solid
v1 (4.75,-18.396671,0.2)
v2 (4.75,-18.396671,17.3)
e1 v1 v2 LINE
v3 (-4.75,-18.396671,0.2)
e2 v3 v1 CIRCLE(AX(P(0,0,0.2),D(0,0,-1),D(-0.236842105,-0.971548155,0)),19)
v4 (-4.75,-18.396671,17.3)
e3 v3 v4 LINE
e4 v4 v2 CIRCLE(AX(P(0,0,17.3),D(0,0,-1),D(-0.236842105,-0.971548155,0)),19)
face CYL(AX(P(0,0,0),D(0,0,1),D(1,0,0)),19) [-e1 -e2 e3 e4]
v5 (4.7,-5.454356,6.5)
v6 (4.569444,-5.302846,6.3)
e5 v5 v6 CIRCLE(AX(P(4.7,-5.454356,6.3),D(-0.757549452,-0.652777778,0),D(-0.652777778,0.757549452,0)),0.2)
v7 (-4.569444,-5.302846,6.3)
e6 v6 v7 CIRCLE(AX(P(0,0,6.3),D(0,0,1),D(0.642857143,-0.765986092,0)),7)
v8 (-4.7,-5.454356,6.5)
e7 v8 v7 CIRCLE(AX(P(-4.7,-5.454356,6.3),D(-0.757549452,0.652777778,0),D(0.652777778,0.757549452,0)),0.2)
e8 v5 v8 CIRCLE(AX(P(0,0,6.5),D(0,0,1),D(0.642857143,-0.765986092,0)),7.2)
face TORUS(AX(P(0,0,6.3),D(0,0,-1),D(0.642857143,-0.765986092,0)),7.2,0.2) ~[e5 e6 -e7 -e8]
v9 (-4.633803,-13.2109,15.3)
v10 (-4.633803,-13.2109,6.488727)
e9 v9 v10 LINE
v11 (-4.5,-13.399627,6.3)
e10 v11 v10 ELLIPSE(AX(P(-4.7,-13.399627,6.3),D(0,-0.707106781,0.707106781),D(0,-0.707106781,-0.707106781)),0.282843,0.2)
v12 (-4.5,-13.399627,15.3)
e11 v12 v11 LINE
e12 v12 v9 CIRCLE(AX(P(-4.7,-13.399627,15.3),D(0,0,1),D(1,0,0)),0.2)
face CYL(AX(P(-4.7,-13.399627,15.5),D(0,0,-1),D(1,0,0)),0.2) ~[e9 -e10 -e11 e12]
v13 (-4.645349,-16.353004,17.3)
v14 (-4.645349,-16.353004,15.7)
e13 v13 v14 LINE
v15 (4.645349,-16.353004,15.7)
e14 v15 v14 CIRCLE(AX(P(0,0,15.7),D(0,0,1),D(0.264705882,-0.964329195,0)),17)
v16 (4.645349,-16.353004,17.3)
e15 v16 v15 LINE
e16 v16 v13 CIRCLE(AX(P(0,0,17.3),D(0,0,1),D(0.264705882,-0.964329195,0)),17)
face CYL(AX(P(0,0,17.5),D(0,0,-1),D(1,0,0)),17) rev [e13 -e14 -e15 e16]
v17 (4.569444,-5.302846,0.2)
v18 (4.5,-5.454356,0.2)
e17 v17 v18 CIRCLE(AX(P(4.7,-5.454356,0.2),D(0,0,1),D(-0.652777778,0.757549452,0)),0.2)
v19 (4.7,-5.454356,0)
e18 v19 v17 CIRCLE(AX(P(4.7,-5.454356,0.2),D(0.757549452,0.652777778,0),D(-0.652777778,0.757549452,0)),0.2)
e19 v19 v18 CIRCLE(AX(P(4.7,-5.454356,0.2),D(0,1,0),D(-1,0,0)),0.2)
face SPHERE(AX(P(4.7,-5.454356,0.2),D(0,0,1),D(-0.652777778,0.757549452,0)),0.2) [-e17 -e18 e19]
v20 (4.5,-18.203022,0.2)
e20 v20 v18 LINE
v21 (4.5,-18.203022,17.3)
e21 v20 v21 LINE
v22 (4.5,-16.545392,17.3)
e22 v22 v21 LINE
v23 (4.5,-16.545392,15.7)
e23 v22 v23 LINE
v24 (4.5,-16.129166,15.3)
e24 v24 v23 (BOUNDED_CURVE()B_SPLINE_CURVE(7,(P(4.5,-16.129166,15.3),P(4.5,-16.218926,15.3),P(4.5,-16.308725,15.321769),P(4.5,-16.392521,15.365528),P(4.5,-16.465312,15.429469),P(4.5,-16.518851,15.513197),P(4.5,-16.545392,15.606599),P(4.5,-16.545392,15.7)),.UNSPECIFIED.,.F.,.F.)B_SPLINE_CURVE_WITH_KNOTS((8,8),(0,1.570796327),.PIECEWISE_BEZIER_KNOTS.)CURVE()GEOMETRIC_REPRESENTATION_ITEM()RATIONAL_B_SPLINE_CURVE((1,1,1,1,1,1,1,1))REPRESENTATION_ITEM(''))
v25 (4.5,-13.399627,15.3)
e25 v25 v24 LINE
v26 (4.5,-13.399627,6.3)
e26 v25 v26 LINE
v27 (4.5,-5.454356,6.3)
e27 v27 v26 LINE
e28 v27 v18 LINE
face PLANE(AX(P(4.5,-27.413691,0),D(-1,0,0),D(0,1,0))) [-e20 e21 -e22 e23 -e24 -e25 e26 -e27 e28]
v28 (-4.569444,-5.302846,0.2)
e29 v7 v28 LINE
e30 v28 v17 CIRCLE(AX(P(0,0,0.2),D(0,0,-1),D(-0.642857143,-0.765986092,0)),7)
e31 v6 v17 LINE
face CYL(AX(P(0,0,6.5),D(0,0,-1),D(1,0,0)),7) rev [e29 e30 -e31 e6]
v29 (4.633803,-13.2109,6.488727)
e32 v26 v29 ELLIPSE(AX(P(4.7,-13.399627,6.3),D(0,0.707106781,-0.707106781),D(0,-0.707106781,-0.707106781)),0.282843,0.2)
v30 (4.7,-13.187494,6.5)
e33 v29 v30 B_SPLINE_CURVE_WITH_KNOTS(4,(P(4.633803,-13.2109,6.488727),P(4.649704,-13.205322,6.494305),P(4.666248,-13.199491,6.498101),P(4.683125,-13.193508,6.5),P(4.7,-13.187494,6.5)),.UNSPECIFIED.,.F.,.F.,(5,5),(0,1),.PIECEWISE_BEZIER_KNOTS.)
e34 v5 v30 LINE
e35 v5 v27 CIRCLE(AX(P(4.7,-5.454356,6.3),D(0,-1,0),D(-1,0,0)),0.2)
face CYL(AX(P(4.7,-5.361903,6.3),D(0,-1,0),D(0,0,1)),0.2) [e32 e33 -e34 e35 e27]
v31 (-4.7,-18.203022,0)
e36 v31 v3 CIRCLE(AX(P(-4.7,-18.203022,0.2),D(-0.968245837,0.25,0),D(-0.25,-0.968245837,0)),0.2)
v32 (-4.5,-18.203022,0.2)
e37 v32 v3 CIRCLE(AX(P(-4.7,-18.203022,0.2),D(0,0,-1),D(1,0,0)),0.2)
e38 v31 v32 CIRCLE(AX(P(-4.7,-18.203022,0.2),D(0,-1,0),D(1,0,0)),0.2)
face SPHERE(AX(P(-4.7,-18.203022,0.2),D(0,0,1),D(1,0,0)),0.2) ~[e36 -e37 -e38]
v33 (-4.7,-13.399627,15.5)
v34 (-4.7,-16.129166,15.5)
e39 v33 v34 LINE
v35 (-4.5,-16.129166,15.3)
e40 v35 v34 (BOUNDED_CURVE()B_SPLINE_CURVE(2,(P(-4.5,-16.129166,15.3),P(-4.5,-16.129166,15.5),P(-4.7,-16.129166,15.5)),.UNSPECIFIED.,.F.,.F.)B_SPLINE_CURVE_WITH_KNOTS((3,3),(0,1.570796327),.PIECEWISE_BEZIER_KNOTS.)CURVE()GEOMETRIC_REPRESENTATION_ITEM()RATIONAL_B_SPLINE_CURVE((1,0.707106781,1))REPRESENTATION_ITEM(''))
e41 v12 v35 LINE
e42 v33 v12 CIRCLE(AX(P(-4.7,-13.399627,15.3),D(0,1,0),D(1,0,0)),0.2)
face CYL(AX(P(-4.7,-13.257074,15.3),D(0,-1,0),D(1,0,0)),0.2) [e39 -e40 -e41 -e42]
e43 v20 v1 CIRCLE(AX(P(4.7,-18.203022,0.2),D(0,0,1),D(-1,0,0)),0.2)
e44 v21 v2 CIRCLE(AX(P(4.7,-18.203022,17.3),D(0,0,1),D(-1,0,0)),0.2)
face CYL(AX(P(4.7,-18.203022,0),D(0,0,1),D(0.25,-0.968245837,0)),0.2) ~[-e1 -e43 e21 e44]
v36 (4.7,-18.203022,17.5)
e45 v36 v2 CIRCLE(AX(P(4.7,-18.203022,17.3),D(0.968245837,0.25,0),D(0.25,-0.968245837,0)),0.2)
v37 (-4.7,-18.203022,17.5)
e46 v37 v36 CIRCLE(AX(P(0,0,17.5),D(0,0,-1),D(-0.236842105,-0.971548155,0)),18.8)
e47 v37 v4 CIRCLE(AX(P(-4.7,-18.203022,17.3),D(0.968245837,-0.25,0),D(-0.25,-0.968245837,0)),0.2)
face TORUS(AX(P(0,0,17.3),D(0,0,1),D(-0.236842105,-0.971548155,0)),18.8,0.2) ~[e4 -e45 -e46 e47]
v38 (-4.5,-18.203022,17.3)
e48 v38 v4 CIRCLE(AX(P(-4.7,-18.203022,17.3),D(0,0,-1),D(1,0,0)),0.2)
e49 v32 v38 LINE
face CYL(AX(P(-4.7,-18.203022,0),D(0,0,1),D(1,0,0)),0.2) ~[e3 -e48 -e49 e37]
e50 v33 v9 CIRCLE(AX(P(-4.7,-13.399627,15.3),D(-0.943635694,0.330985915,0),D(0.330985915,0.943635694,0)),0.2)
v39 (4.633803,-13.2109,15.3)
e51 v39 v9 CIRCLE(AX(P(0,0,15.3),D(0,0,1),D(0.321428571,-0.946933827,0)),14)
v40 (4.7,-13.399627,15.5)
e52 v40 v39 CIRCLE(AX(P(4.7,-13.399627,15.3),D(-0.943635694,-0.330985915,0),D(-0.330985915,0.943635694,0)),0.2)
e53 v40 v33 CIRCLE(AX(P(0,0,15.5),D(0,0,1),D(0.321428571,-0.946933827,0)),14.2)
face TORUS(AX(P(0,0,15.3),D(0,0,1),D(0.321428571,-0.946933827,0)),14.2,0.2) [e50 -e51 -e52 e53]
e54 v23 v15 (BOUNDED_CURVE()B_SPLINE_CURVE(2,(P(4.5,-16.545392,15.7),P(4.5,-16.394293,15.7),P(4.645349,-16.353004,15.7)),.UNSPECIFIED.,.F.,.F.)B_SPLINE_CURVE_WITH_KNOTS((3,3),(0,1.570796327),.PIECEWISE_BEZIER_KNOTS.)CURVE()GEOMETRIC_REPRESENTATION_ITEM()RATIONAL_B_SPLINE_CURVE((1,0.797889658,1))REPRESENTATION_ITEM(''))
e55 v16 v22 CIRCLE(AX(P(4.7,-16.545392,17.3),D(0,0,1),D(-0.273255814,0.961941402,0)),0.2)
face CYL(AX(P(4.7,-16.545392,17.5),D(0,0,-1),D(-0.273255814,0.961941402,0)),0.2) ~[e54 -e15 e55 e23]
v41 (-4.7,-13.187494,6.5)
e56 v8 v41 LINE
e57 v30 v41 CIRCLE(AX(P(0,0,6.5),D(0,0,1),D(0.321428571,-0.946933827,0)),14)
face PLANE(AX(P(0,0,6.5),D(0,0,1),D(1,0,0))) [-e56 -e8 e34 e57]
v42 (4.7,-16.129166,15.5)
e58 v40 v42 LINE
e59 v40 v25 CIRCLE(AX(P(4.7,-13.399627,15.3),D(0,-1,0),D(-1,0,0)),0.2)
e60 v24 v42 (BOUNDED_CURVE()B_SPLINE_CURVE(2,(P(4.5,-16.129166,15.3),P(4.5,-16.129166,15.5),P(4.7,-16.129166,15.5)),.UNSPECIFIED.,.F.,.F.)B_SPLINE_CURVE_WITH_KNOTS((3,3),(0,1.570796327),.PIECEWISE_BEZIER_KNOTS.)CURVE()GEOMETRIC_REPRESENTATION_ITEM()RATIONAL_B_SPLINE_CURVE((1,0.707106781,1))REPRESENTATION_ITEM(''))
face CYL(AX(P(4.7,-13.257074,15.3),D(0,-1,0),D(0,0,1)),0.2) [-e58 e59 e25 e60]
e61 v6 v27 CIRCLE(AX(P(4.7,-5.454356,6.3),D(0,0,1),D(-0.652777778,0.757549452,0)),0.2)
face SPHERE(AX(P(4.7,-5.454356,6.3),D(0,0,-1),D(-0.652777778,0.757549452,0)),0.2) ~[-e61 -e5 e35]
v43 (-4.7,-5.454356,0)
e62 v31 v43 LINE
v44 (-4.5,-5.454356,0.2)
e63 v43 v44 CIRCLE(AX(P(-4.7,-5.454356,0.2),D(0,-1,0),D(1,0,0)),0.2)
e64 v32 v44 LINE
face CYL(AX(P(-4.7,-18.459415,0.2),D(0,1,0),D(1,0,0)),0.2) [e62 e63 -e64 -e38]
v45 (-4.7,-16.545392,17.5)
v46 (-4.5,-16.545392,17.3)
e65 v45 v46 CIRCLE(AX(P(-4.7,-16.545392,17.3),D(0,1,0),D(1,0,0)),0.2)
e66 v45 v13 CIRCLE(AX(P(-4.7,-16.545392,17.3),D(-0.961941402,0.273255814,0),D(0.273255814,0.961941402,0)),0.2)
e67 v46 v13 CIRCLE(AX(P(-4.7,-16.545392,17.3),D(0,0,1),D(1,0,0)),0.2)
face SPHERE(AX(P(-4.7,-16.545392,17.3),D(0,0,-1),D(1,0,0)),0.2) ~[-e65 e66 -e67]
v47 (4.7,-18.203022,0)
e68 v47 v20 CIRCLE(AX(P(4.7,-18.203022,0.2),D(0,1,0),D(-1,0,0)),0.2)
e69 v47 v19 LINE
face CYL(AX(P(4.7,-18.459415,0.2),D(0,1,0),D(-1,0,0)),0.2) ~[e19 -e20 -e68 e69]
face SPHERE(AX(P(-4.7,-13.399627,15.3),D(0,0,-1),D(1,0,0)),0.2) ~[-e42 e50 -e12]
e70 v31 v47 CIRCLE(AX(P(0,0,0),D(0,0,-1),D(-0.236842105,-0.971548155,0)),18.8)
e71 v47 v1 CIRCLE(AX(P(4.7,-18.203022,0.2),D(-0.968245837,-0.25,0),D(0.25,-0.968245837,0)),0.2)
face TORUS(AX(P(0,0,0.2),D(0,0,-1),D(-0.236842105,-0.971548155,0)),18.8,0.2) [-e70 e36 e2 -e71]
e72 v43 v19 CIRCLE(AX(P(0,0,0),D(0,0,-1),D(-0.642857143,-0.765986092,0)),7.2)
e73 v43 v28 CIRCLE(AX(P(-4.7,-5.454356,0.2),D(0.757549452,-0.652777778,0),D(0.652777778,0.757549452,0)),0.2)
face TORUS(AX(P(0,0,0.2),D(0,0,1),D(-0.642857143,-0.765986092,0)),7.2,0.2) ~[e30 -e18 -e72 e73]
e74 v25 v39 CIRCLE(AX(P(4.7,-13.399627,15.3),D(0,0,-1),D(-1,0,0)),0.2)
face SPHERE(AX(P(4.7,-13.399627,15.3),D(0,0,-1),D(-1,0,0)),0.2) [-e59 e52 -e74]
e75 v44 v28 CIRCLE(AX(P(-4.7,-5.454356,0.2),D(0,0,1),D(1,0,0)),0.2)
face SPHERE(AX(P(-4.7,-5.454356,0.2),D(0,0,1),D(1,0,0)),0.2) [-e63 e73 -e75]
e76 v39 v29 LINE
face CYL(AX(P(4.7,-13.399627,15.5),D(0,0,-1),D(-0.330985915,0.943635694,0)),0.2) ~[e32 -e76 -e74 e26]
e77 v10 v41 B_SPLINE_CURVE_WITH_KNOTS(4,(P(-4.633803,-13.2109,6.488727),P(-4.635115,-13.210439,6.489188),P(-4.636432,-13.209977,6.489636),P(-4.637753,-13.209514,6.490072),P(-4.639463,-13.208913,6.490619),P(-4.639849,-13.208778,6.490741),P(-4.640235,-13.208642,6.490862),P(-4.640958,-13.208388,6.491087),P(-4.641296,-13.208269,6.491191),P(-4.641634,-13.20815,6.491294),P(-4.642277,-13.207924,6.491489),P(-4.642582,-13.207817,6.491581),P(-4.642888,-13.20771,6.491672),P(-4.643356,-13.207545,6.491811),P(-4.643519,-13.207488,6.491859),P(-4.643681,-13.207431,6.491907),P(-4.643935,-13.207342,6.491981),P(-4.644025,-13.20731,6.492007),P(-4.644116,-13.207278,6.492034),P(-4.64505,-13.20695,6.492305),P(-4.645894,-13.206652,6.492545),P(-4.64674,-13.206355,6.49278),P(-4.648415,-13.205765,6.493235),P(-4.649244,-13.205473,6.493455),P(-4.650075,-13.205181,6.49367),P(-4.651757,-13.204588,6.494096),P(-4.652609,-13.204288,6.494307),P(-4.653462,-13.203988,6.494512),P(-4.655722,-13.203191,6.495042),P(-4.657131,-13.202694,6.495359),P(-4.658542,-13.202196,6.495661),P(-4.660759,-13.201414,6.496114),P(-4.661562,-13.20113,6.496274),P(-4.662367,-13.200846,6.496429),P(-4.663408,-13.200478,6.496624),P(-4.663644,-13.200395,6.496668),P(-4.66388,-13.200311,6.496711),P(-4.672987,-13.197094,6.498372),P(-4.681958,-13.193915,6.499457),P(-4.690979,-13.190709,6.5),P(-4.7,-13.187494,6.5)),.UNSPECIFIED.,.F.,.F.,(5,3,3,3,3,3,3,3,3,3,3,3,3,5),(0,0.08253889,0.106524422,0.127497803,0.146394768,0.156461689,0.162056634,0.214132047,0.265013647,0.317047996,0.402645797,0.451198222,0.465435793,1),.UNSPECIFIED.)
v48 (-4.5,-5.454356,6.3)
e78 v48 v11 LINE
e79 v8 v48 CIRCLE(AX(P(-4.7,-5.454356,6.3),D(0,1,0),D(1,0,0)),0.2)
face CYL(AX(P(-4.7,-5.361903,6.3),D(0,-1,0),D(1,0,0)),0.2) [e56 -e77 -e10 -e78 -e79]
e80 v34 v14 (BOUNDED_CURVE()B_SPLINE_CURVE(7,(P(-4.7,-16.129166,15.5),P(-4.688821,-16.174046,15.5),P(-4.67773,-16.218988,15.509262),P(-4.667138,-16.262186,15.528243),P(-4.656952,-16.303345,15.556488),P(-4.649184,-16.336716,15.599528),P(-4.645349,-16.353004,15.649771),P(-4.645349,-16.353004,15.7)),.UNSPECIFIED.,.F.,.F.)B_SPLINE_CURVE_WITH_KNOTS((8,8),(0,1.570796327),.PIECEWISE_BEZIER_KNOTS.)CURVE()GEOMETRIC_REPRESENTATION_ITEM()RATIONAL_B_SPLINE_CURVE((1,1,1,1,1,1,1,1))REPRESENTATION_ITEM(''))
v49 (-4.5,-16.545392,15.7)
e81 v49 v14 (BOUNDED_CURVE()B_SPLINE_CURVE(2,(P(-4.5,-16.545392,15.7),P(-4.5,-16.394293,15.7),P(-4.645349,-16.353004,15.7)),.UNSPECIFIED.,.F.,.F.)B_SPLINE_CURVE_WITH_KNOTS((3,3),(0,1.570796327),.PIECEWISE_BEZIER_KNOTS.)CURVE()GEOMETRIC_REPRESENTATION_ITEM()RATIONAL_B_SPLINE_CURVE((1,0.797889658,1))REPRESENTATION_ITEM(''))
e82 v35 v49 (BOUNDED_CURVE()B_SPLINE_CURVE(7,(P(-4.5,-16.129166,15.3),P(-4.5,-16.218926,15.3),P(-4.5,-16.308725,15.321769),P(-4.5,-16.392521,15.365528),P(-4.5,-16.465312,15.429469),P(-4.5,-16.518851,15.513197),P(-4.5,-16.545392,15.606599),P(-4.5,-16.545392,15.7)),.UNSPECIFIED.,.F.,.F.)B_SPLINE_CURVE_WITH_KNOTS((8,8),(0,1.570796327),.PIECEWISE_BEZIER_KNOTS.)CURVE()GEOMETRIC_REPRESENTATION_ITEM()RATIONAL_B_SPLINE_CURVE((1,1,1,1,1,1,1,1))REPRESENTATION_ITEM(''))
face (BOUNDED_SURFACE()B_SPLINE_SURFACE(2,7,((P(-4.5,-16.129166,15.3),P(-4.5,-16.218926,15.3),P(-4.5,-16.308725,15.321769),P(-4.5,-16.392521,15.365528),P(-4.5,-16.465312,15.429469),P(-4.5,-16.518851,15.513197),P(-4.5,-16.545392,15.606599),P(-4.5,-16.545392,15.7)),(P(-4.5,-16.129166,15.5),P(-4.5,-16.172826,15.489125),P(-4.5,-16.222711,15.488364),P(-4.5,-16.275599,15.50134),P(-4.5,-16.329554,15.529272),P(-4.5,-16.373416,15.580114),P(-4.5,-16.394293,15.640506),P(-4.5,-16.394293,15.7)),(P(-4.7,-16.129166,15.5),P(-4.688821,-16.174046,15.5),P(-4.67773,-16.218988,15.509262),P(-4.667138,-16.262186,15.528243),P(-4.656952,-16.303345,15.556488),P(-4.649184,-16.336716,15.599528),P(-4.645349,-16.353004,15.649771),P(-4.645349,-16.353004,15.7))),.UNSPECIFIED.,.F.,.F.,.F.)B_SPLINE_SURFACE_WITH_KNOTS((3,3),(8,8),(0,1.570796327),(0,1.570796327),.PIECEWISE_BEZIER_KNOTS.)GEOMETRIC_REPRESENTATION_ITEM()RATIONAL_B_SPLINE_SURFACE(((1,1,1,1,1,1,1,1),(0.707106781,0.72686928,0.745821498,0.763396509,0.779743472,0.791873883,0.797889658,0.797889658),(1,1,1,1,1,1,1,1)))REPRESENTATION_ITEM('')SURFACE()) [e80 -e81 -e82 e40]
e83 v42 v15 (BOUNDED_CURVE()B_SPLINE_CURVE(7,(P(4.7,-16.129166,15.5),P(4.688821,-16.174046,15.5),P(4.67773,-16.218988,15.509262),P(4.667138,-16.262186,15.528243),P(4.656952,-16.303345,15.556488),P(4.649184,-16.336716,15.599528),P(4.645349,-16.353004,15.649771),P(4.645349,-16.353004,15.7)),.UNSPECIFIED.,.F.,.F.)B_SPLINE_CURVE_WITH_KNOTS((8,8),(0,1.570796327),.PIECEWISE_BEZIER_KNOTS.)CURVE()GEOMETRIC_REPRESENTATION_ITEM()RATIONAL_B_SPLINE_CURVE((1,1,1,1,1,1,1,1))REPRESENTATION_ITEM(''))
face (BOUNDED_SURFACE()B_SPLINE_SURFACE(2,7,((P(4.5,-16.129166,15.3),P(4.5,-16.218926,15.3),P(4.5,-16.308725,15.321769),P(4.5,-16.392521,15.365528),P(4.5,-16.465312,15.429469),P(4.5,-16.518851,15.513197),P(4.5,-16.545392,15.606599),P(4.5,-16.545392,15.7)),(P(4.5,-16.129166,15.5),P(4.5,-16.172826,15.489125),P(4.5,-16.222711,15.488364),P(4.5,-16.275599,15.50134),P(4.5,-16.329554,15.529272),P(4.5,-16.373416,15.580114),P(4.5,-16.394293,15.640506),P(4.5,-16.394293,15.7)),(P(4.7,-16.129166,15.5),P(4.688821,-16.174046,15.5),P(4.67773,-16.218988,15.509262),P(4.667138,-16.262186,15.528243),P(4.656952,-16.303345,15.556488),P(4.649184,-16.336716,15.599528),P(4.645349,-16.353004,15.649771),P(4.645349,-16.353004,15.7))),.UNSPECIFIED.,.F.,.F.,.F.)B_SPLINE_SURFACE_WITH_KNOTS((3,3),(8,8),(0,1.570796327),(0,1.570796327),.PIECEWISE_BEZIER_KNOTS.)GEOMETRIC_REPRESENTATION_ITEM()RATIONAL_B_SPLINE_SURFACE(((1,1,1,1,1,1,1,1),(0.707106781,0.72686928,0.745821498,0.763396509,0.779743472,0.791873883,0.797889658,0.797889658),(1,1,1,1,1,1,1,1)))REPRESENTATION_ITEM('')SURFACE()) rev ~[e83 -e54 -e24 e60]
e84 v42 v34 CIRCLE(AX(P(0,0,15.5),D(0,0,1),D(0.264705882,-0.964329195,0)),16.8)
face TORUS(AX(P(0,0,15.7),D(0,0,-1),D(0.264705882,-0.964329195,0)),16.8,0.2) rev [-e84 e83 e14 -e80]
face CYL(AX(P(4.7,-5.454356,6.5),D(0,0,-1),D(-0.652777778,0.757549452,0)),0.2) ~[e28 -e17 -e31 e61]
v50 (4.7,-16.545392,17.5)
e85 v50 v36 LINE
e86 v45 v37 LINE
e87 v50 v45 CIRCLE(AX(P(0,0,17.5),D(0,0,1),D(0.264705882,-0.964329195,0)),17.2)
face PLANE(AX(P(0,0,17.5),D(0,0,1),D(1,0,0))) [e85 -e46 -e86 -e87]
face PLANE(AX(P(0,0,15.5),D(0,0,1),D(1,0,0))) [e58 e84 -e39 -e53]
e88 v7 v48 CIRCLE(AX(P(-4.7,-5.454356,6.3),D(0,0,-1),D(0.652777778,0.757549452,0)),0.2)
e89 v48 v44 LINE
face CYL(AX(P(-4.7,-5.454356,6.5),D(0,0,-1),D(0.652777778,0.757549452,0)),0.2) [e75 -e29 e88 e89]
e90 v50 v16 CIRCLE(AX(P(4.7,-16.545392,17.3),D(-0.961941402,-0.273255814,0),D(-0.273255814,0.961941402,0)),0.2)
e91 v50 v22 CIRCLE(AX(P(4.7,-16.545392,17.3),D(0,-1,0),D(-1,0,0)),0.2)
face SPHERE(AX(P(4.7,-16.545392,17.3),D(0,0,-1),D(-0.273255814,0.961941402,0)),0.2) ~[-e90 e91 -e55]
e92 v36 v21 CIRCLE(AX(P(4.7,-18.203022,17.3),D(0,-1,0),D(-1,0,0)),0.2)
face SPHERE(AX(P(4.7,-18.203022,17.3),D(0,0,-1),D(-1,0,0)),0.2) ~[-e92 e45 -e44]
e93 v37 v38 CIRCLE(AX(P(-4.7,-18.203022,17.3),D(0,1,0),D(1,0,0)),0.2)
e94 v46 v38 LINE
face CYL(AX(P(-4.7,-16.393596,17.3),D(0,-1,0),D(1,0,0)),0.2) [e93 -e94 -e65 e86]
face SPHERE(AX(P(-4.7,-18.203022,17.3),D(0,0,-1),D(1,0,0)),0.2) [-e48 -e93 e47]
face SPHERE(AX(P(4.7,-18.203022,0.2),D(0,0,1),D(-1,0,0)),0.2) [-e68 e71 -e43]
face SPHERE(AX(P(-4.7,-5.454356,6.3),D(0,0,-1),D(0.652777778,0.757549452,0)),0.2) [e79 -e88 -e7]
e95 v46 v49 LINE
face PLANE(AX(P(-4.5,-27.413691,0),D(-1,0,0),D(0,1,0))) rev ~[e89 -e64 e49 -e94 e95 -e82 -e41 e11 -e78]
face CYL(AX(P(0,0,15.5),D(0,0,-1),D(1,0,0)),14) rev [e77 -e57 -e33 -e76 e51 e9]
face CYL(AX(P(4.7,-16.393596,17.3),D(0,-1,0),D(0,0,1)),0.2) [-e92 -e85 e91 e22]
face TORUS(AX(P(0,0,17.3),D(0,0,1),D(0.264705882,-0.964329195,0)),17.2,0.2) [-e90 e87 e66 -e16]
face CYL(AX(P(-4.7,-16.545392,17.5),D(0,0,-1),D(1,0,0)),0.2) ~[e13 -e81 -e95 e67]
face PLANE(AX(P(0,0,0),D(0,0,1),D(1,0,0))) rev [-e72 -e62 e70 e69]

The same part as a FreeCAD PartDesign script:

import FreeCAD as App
import Part
import Sketcher

V = App.Vector
Q = App.Units.Quantity


def edges_at(feature, points):
    """Names of the edges that pass closest to the given points."""
    edges = feature.Shape.Edges
    near = lambda p: min(range(len(edges)), key=lambda i: edges[i].distToShape(Part.Vertex(*p))[0])
    return sorted({f"Edge{near(p) + 1}" for p in points})


def add_polygon(sketch, points):
    """Adds a closed chain of lines whose ends are joined by coincident constraints."""
    first, n = sketch.GeometryCount, len(points)
    for a, b in zip(points, points[1:] + points[:1]):
        sketch.addGeometry(Part.LineSegment(App.Vector(*a, 0), App.Vector(*b, 0)), False)
    for i in range(n):
        sketch.addConstraint(Sketcher.Constraint("Coincident", first + i, 2, first + (i + 1) % n, 1))

doc = App.newDocument("Part")
body = doc.addObject("PartDesign::Body", "Body")

sketch1 = body.newObject("Sketcher::SketchObject", "Sketch")
sketch1.AttachmentSupport = (doc.getObject("XZ_Plane"), [""])
sketch1.MapMode = "FlatFace"
add_polygon(sketch1, [(7, 6.5), (7, 0), (19, 0), (19, 17.5), (17, 17.5), (17, 15.5), (14, 15.5), (14, 6.5)])
sketch1.addConstraint([
    Sketcher.Constraint("Vertical", 0),
    Sketcher.Constraint("Horizontal", 1),
    Sketcher.Constraint("Vertical", 2),
    Sketcher.Constraint("Horizontal", 3),
    Sketcher.Constraint("Vertical", 4),
    Sketcher.Constraint("Horizontal", 5),
    Sketcher.Constraint("Vertical", 6),
    Sketcher.Constraint("Horizontal", 7),
    Sketcher.Constraint("PointOnObject", 0, 2, -1),
    Sketcher.Constraint("Equal", 3, 4),
    Sketcher.Constraint("DistanceX", 1, 1, 1, 2, Q("12 mm")),
    Sketcher.Constraint("DistanceX", 3, 2, 3, 1, Q("2 mm")),
    Sketcher.Constraint("DistanceX", 5, 2, 5, 1, Q("3 mm")),
    Sketcher.Constraint("DistanceY", 6, 2, 6, 1, Q("9 mm")),
    Sketcher.Constraint("DistanceY", 0, 2, 0, 1, Q("6.5 mm")),
    Sketcher.Constraint("DistanceX", -1, 1, 0, 2, Q("7 mm")),
])
revolution = body.newObject("PartDesign::Revolution", "Revolution")
revolution.Profile = sketch1
revolution.ReferenceAxis = (sketch1, ["V_Axis"])
revolution.Angle = 360

sketch2 = body.newObject("Sketcher::SketchObject", "Sketch001")
sketch2.AttachmentSupport = (doc.getObject("XY_Plane"), [""])
sketch2.MapMode = "FlatFace"
add_polygon(sketch2, [(-4, -1), (-4, -27), (4, -27), (4, -1)])
sketch2.addConstraint([
    Sketcher.Constraint("Vertical", 0),
    Sketcher.Constraint("Horizontal", 1),
    Sketcher.Constraint("Vertical", 2),
    Sketcher.Constraint("Horizontal", 3),
    Sketcher.Constraint("DistanceX", 1, 1, 1, 2, Q("9 mm")),
    Sketcher.Constraint("DistanceX", 0, 2, -1, 1, Q("4.5 mm")),
    Sketcher.Constraint("DistanceY", 0, 2, 0, 1, Q("26.484751 mm")),
    Sketcher.Constraint("DistanceY", 0, 2, -1, 1, Q("27.413691 mm")),
])
pocket1 = body.newObject("PartDesign::Pocket", "Pocket")
pocket1.Profile = sketch2
pocket1.Length = 76.9
pocket1.Reversed = True
doc.recompute()

fillet = body.newObject("PartDesign::Fillet", "Fillet")
fillet.Base = (pocket1, edges_at(pocket1, [
    (0, 19, 17.5),
    (0, 17, 17.5),
    (0, 14, 15.5),
    (0, 19, 0),
    (0, 7, 6.5),
    (4.5, -18.459, 8.75),
    (-4.5, -18.459, 8.75),
    (4.5, -13.257, 11),
    (4.5, -9.309, 6.5),
    (-4.5, -9.309, 6.5),
    (-4.5, -16.394, 16.5),
    (-4.5, -11.911, 0),
    (-4.5, -13.257, 11),
    (0, 17, 15.5),
    (4.5, -17.427, 17.5),
    (0, 7, 0),
    (-4.5, -5.362, 3.25),
    (4.5, -11.911, 0),
    (-4.5, -14.825, 15.5),
    (4.5, -5.362, 3.25),
    (4.5, -14.825, 15.5),
    (4.5, -16.394, 16.5),
    (-4.5, -17.427, 17.5),
]))
fillet.Radius = 0.2

doc.recompute()
